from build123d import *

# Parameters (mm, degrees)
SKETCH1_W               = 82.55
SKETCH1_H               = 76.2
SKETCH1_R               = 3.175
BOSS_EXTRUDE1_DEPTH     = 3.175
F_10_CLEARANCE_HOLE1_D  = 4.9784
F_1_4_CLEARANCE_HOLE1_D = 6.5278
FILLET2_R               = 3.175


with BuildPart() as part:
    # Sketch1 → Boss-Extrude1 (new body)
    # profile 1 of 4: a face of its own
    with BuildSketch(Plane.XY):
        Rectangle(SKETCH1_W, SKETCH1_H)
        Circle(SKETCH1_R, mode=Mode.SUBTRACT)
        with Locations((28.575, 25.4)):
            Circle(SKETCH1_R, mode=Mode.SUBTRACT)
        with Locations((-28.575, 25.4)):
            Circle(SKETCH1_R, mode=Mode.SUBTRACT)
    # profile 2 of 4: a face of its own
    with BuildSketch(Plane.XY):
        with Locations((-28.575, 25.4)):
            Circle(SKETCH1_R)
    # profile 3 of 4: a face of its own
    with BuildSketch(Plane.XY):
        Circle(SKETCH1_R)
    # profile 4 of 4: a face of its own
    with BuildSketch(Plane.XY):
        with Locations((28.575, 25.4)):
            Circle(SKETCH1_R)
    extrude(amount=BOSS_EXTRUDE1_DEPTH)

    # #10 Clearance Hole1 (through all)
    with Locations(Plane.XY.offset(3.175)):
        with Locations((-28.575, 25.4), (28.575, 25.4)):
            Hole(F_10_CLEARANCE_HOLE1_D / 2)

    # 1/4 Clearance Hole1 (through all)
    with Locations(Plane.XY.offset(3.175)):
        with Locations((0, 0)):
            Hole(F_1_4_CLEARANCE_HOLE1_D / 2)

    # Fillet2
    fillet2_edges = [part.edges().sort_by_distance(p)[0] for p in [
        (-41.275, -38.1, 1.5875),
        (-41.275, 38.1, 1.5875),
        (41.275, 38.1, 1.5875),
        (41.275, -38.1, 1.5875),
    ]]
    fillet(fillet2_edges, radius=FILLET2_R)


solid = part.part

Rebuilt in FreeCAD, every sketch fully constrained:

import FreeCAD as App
import Part
import Sketcher

V = App.Vector
Q = App.Units.Quantity


def edges_at(feature, points):
    """Names of the edges that pass closest to the given points."""
    edges = feature.Shape.Edges
    near = lambda p: min(range(len(edges)), key=lambda i: edges[i].distToShape(Part.Vertex(*p))[0])
    return sorted({f"Edge{near(p) + 1}" for p in points})


def add_polygon(sketch, points):
    """Adds a closed chain of lines whose ends are joined by coincident constraints."""
    first, n = sketch.GeometryCount, len(points)
    for a, b in zip(points, points[1:] + points[:1]):
        sketch.addGeometry(Part.LineSegment(App.Vector(*a, 0), App.Vector(*b, 0)), False)
    for i in range(n):
        sketch.addConstraint(Sketcher.Constraint("Coincident", first + i, 2, first + (i + 1) % n, 1))

doc = App.newDocument("Part")
params = doc.addObject("Spreadsheet::Sheet", "Params")
for row, (alias, value) in enumerate([
    ("sketch1_height", "3 in"),
    ("sketch1_width", "3.25 in"),
    ("pad1_length", "0.125 in"),
    ("sketch2_diameter", "0.196 in"),
    ("hole_diameter", "0.196 in"),
    ("sketch3_diameter", "0.257 in"),
    ("hole2_diameter", "0.257 in"),
    ("fillet_radius", "0.125 in"),
], start=1):
    params.set(f"A{row}", alias)
    params.set(f"B{row}", "=" + value)
    params.setAlias(f"B{row}", alias)

body = doc.addObject("PartDesign::Body", "Body")

sketch1 = doc.addObject("Sketcher::SketchObject", "Sketch")
body.addObject(sketch1)
sketch1.AttachmentSupport = (doc.XY_Plane, [""])
sketch1.MapMode = "FlatFace"
add_polygon(sketch1, [(-41, 38), (-41, -38), (41, -38), (41, 38)])
sketch1.addConstraint([
    Sketcher.Constraint("Vertical", 0),
    Sketcher.Constraint("Horizontal", 1),
    Sketcher.Constraint("Vertical", 2),
    Sketcher.Constraint("Horizontal", 3),
    Sketcher.Constraint("Symmetric", 0, 2, 2, 2, -1, 1),
    Sketcher.Constraint("DistanceY", 0, 2, 0, 1, Q("3 in")),
    Sketcher.Constraint("DistanceX", 1, 1, 1, 2, Q("3.25 in")),
])
sketch1.setExpression("Constraints[9]", "Params.sketch1_height")
sketch1.setExpression("Constraints[10]", "Params.sketch1_width")
pad1 = doc.addObject("PartDesign::Pad", "Pad")
body.addObject(pad1)
pad1.Profile = sketch1
pad1.setExpression("Length", "Params.pad1_length")

sketch2 = doc.addObject("Sketcher::SketchObject", "Sketch001")
body.addObject(sketch2)
sketch2.AttachmentSupport = (doc.XY_Plane, [""])
sketch2.MapMode = "FlatFace"
sketch2.AttachmentOffset = App.Placement(V(0, 0, 0.125 * 25.4), App.Rotation())
sketch2.addGeometry([
    Part.Circle(V(-28.6, 25.4, 0), V(0, 0, 1), 2.5),
    Part.Circle(V(28.6, 25.4, 0), V(0, 0, 1), 2.5),
], False)
sketch2.addConstraint([
    Sketcher.Constraint("Equal", 0, 1),
    Sketcher.Constraint("Symmetric", 0, 3, 1, 3, -2),
    Sketcher.Constraint("Diameter", 0, Q("0.196 in")),
    Sketcher.Constraint("DistanceY", -1, 1, 0, 3, Q("1 in")),
    Sketcher.Constraint("DistanceX", 0, 3, 1, 3, Q("2.25 in")),
])
sketch2.setExpression("Constraints[2]", "Params.sketch2_diameter")
doc.recompute()
hole = doc.addObject("PartDesign::Hole", "Hole")
body.addObject(hole)
hole.Profile = sketch2
hole.ThreadType = "None"
hole.setExpression("Diameter", "Params.hole_diameter")
hole.DepthType = "ThroughAll"

sketch3 = doc.addObject("Sketcher::SketchObject", "Sketch002")
body.addObject(sketch3)
sketch3.AttachmentSupport = (doc.XY_Plane, [""])
sketch3.MapMode = "FlatFace"
sketch3.AttachmentOffset = App.Placement(V(0, 0, 0.125 * 25.4), App.Rotation())
sketch3.addGeometry(Part.Circle(V(0, 0, 0), V(0, 0, 1), 3.3), False)
sketch3.addConstraint([
    Sketcher.Constraint("Coincident", 0, 3, -1, 1),
    Sketcher.Constraint("Diameter", 0, Q("0.257 in")),
])
sketch3.setExpression("Constraints[1]", "Params.sketch3_diameter")
doc.recompute()
hole2 = doc.addObject("PartDesign::Hole", "Hole001")
body.addObject(hole2)
hole2.Profile = sketch3
hole2.ThreadType = "None"
hole2.setExpression("Diameter", "Params.hole2_diameter")
hole2.DepthType = "ThroughAll"
doc.recompute()

fillet = doc.addObject("PartDesign::Fillet", "Fillet")
body.addObject(fillet)
fillet.Base = (hole2, edges_at(hole2, [
    (-41.275, -38.1, 1.587),
    (-41.275, 38.1, 1.587),
    (41.275, 38.1, 1.587),
    (41.275, -38.1, 1.587),
]))
fillet.setExpression("Radius", "Params.fillet_radius")

doc.recompute()
